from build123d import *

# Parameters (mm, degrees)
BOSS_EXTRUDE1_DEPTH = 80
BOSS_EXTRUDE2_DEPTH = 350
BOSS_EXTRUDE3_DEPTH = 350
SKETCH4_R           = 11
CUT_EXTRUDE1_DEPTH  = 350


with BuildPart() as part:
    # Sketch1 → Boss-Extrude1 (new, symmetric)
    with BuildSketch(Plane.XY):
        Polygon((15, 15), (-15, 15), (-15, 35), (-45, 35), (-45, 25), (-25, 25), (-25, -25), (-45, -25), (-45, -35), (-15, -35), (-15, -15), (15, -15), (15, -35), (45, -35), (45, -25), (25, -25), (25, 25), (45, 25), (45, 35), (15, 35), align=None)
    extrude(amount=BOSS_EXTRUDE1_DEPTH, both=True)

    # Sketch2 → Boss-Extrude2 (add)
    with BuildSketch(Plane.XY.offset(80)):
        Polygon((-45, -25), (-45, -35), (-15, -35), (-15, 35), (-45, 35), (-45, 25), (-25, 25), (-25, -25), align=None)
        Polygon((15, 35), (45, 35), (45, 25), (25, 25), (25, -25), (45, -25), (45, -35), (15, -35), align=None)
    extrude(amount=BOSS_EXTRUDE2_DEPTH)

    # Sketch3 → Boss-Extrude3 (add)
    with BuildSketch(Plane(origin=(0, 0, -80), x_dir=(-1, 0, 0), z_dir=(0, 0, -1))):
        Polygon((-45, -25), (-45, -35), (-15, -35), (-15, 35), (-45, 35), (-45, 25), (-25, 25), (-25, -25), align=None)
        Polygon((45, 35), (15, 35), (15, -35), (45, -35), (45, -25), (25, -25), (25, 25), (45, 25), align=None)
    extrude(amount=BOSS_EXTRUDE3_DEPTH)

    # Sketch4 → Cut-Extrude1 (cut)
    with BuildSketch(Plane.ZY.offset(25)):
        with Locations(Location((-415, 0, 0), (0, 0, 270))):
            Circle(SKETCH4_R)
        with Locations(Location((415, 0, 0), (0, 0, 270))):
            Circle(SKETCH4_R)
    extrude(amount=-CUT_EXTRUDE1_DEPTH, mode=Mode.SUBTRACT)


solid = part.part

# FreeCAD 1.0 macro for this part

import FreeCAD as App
import Part
import Sketcher
from FreeCAD import Vector


def add_polygon(sketch, points):
    """Adds a closed chain of lines whose ends are joined by coincident constraints."""
    first, n = sketch.GeometryCount, len(points)
    for a, b in zip(points, points[1:] + points[:1]):
        sketch.addGeometry(Part.LineSegment(App.Vector(*a, 0), App.Vector(*b, 0)), False)
    for i in range(n):
        sketch.addConstraint(Sketcher.Constraint("Coincident", first + i, 2, first + (i + 1) % n, 1))

doc = App.newDocument("Part")
body = doc.addObject("PartDesign::Body", "Body")

sketch1 = body.newObject("Sketcher::SketchObject", "Sketch")
sketch1.AttachmentSupport = (doc.getObject("XY_Plane"), [""])
sketch1.MapMode = "FlatFace"
add_polygon(sketch1, [(15, 15), (-15, 15), (-15, 35), (-45, 35), (-45, 25), (-25, 25), (-25, -25), (-45, -25), (-45, -35), (-15, -35), (-15, -15), (15, -15), (15, -35), (45, -35), (45, -25), (25, -25), (25, 25), (45, 25), (45, 35), (15, 35)])
sketch1.addConstraint([
    Sketcher.Constraint("Horizontal", 0),
    Sketcher.Constraint("Vertical", 1),
    Sketcher.Constraint("Horizontal", 2),
    Sketcher.Constraint("Vertical", 3),
    Sketcher.Constraint("Horizontal", 4),
    Sketcher.Constraint("Vertical", 5),
    Sketcher.Constraint("Horizontal", 6),
    Sketcher.Constraint("Vertical", 7),
    Sketcher.Constraint("Horizontal", 8),
    Sketcher.Constraint("Vertical", 9),
    Sketcher.Constraint("Horizontal", 10),
    Sketcher.Constraint("Vertical", 11),
    Sketcher.Constraint("Horizontal", 12),
    Sketcher.Constraint("Vertical", 13),
    Sketcher.Constraint("Horizontal", 14),
    Sketcher.Constraint("Vertical", 15),
    Sketcher.Constraint("Horizontal", 16),
    Sketcher.Constraint("Vertical", 17),
    Sketcher.Constraint("Horizontal", 18),
    Sketcher.Constraint("Vertical", 19),
    Sketcher.Constraint("Symmetric", 0, 2, 10, 2, -1, 1),
    Sketcher.Constraint("Symmetric", 2, 2, 12, 2, -1, 1),
    Sketcher.Constraint("Symmetric", 4, 2, 14, 2, -1, 1),
    Sketcher.Constraint("Symmetric", 6, 2, 16, 2, -1, 1),
    Sketcher.Constraint("Symmetric", 8, 2, 18, 2, -1, 1),
    Sketcher.Constraint("Symmetric", 8, 2, 11, 2, -2),
    Sketcher.Constraint("Symmetric", 6, 2, 13, 2, -2),
    Sketcher.Constraint("Equal", 0, 2),
    Sketcher.Constraint("Equal", 16, 1),
    Sketcher.Constraint("DistanceX", 0, 2, 0, 1, 30.0),
    Sketcher.Constraint("DistanceX", 4, 1, 4, 2, 20.0),
    Sketcher.Constraint("DistanceY", 3, 2, 3, 1, 10.0),
    Sketcher.Constraint("DistanceY", 5, 2, 5, 1, 50.0),
])
pad1 = body.newObject("PartDesign::Pad", "Pad")
pad1.Profile = sketch1
pad1.Length = 160
pad1.Midplane = True

sketch2 = body.newObject("Sketcher::SketchObject", "Sketch001")
sketch2.AttachmentSupport = (doc.getObject("XY_Plane"), [""])
sketch2.MapMode = "FlatFace"
sketch2.AttachmentOffset = App.Placement(Vector(0, 0, 80), App.Rotation())
add_polygon(sketch2, [(-45, -25), (-45, -35), (-15, -35), (-15, 35), (-45, 35), (-45, 25), (-25, 25), (-25, -25)])
add_polygon(sketch2, [(45, 35), (15, 35), (15, -35), (45, -35), (45, -25), (25, -25), (25, 25), (45, 25)])
sketch2.addConstraint([
    Sketcher.Constraint("Vertical", 0),
    Sketcher.Constraint("Horizontal", 1),
    Sketcher.Constraint("Vertical", 2),
    Sketcher.Constraint("Horizontal", 3),
    Sketcher.Constraint("Vertical", 4),
    Sketcher.Constraint("Horizontal", 5),
    Sketcher.Constraint("Vertical", 6),
    Sketcher.Constraint("Horizontal", 7),
    Sketcher.Constraint("Horizontal", 8),
    Sketcher.Constraint("Vertical", 9),
    Sketcher.Constraint("Horizontal", 10),
    Sketcher.Constraint("Vertical", 11),
    Sketcher.Constraint("Horizontal", 12),
    Sketcher.Constraint("Vertical", 13),
    Sketcher.Constraint("Horizontal", 14),
    Sketcher.Constraint("Vertical", 15),
    Sketcher.Constraint("Symmetric", 1, 2, 8, 2, -1, 1),
    Sketcher.Constraint("Symmetric", 3, 2, 10, 2, -1, 1),
    Sketcher.Constraint("Symmetric", 5, 2, 12, 2, -1, 1),
    Sketcher.Constraint("Symmetric", 7, 2, 14, 2, -1, 1),
    Sketcher.Constraint("Symmetric", 0, 2, 10, 2, -2),
    Sketcher.Constraint("Horizontal", 7, 2, 11, 2),
    Sketcher.Constraint("DistanceX", 1, 1, 1, 2, 30.0),
    Sketcher.Constraint("DistanceX", 5, 1, 5, 2, 20.0),
    Sketcher.Constraint("DistanceY", 0, 2, 0, 1, 10.0),
    Sketcher.Constraint("DistanceY", 2, 1, 2, 2, 70.0),
    Sketcher.Constraint("DistanceX", 0, 2, -1, 1, 45.0),
])
pad2 = body.newObject("PartDesign::Pad", "Pad001")
pad2.Profile = sketch2
pad2.Length = 350

sketch3 = body.newObject("Sketcher::SketchObject", "Sketch002")
sketch3.AttachmentSupport = (doc.getObject("XY_Plane"), [""])
sketch3.MapMode = "FlatFace"
sketch3.AttachmentOffset = App.Placement(Vector(0, 0, -80), App.Rotation())
add_polygon(sketch3, [(45, -25), (45, -35), (15, -35), (15, 35), (45, 35), (45, 25), (25, 25), (25, -25)])
add_polygon(sketch3, [(-45, 35), (-15, 35), (-15, -35), (-45, -35), (-45, -25), (-25, -25), (-25, 25), (-45, 25)])
sketch3.addConstraint([
    Sketcher.Constraint("Vertical", 0),
    Sketcher.Constraint("Horizontal", 1),
    Sketcher.Constraint("Vertical", 2),
    Sketcher.Constraint("Horizontal", 3),
    Sketcher.Constraint("Vertical", 4),
    Sketcher.Constraint("Horizontal", 5),
    Sketcher.Constraint("Vertical", 6),
    Sketcher.Constraint("Horizontal", 7),
    Sketcher.Constraint("Horizontal", 8),
    Sketcher.Constraint("Vertical", 9),
    Sketcher.Constraint("Horizontal", 10),
    Sketcher.Constraint("Vertical", 11),
    Sketcher.Constraint("Horizontal", 12),
    Sketcher.Constraint("Vertical", 13),
    Sketcher.Constraint("Horizontal", 14),
    Sketcher.Constraint("Vertical", 15),
    Sketcher.Constraint("Symmetric", 1, 2, 8, 2, -1, 1),
    Sketcher.Constraint("Symmetric", 3, 2, 10, 2, -1, 1),
    Sketcher.Constraint("Symmetric", 5, 2, 12, 2, -1, 1),
    Sketcher.Constraint("Symmetric", 7, 2, 14, 2, -1, 1),
    Sketcher.Constraint("Symmetric", 0, 2, 10, 2, -2),
    Sketcher.Constraint("Horizontal", 7, 2, 11, 2),
    Sketcher.Constraint("DistanceX", 1, 2, 1, 1, 30.0),
    Sketcher.Constraint("DistanceX", 5, 2, 5, 1, 20.0),
    Sketcher.Constraint("DistanceY", 0, 2, 0, 1, 10.0),
    Sketcher.Constraint("DistanceY", 2, 1, 2, 2, 70.0),
    Sketcher.Constraint("DistanceX", -1, 1, 0, 2, 45.0),
])
pad3 = body.newObject("PartDesign::Pad", "Pad002")
pad3.Profile = sketch3
pad3.Length = 350
pad3.Reversed = True

sketch4 = body.newObject("Sketcher::SketchObject", "Sketch003")
sketch4.AttachmentSupport = (doc.getObject("YZ_Plane"), [""])
sketch4.MapMode = "FlatFace"
sketch4.AttachmentOffset = App.Placement(Vector(0, 0, -25), App.Rotation())
sketch4.addGeometry([
    Part.Circle(Vector(0, -415, 0), Vector(0, 0, 1), 11),
    Part.Circle(Vector(0, 415, 0), Vector(0, 0, 1), 11),
], False)
sketch4.addConstraint([
    Sketcher.Constraint("Equal", 0, 1),
    Sketcher.Constraint("Symmetric", 0, 3, 1, 3, -1, 1),
    Sketcher.Constraint("PointOnObject", 0, 3, -2),
    Sketcher.Constraint("Diameter", 0, 22.0),
    Sketcher.Constraint("DistanceY", 0, 3, -1, 1, 415.0),
])
pocket1 = body.newObject("PartDesign::Pocket", "Pocket")
pocket1.Profile = sketch4
pocket1.Length = 350
pocket1.Reversed = True

doc.recompute()
